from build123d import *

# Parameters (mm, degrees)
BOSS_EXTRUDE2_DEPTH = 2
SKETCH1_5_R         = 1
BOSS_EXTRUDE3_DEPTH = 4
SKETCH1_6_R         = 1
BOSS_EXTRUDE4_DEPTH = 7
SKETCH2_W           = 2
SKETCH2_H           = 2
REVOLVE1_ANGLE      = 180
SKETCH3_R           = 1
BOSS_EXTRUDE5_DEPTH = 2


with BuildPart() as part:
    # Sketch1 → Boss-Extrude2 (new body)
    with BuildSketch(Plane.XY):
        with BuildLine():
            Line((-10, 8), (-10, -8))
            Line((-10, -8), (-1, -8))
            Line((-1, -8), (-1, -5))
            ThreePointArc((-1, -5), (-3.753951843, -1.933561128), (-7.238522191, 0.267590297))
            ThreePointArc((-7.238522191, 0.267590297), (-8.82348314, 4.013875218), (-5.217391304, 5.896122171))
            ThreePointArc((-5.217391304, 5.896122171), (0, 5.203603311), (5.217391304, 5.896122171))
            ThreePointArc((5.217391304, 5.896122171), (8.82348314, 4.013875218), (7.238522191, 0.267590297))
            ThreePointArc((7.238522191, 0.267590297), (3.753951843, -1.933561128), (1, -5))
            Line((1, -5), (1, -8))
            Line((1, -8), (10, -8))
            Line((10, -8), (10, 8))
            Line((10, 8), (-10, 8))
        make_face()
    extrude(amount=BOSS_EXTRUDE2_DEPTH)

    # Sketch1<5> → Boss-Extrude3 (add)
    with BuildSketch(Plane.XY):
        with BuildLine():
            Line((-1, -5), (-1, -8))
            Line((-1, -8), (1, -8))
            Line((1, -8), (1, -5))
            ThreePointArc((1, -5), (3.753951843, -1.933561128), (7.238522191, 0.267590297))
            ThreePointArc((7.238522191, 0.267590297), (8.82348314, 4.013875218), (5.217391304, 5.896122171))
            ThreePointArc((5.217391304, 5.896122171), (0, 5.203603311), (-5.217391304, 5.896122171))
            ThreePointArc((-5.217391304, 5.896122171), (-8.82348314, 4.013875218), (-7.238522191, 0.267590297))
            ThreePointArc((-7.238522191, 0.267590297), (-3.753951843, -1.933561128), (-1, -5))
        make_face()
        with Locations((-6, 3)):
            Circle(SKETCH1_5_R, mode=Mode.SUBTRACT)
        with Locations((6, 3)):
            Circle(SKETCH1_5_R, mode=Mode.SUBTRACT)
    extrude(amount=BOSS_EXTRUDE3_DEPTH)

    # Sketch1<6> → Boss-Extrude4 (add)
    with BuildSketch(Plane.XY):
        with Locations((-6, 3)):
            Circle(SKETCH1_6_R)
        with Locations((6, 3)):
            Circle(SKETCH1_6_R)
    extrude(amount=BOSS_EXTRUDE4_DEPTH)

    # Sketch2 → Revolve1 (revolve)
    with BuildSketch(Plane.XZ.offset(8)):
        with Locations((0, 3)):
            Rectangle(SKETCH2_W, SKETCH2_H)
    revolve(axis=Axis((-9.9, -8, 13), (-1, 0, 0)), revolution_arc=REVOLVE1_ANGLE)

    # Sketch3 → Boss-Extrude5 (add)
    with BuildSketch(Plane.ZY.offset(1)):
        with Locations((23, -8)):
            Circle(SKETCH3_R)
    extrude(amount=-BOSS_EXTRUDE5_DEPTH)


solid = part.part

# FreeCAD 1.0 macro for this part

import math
import FreeCAD as App
import Part
import Sketcher

V = App.Vector
Q = App.Units.Quantity


def add_polygon(sketch, points):
    """Adds a closed chain of lines whose ends are joined by coincident constraints."""
    first, n = sketch.GeometryCount, len(points)
    for a, b in zip(points, points[1:] + points[:1]):
        sketch.addGeometry(Part.LineSegment(App.Vector(*a, 0), App.Vector(*b, 0)), False)
    for i in range(n):
        sketch.addConstraint(Sketcher.Constraint("Coincident", first + i, 2, first + (i + 1) % n, 1))

doc = App.newDocument("Part")
body = doc.addObject("PartDesign::Body", "Body")

sketch1 = doc.addObject("Sketcher::SketchObject", "Sketch")
body.addObject(sketch1)
sketch1.AttachmentSupport = (doc.XY_Plane, [""])
sketch1.MapMode = "FlatFace"
sketch1.addGeometry([
    Part.LineSegment(V(-10, 8, 0), V(-10, -8, 0)),
    Part.LineSegment(V(-10, -8, 0), V(-1, -8, 0)),
    Part.LineSegment(V(-1, -8, 0), V(-1, -5, 0)),
    Part.ArcOfCircle(Part.Circle(V(-13.4, -13.4, 0), V(0, 0, 1), 15), math.radians(34), math.radians(66)),
    Part.ArcOfCircle(Part.Circle(V(-6, 3, 0), V(0, 0, 1), 3), math.radians(75), math.radians(246)),
    Part.ArcOfCircle(Part.Circle(V(0, 25.2, 0), V(0, 0, 1), 20), math.radians(-105), math.radians(-75)),
    Part.ArcOfCircle(Part.Circle(V(6, 3, 0), V(0, 0, 1), 3), math.radians(-66), math.radians(105)),
    Part.ArcOfCircle(Part.Circle(V(13.4, -13.4, 0), V(0, 0, 1), 15), math.radians(114), math.radians(146)),
    Part.LineSegment(V(1, -5, 0), V(1, -8, 0)),
    Part.LineSegment(V(1, -8, 0), V(10, -8, 0)),
    Part.LineSegment(V(10, -8, 0), V(10, 8, 0)),
    Part.LineSegment(V(10, 8, 0), V(-10, 8, 0)),
], False)
sketch1.addConstraint([
    Sketcher.Constraint("Coincident", 0, 2, 1, 1),
    Sketcher.Constraint("Coincident", 1, 2, 2, 1),
    Sketcher.Constraint("Coincident", 2, 2, 3, 1),
    Sketcher.Constraint("Tangent", 3, 2, 4, 2),
    Sketcher.Constraint("Tangent", 4, 1, 5, 1),
    Sketcher.Constraint("Tangent", 5, 2, 6, 2),
    Sketcher.Constraint("Tangent", 6, 1, 7, 1),
    Sketcher.Constraint("Coincident", 7, 2, 8, 1),
    Sketcher.Constraint("Coincident", 8, 2, 9, 1),
    Sketcher.Constraint("Coincident", 9, 2, 10, 1),
    Sketcher.Constraint("Coincident", 10, 2, 11, 1),
    Sketcher.Constraint("Coincident", 11, 2, 0, 1),
    Sketcher.Constraint("Vertical", 0),
    Sketcher.Constraint("Horizontal", 1),
    Sketcher.Constraint("Vertical", 2),
    Sketcher.Constraint("Vertical", 8),
    Sketcher.Constraint("Horizontal", 9),
    Sketcher.Constraint("Vertical", 10),
    Sketcher.Constraint("Horizontal", 11),
    Sketcher.Constraint("Equal", 4, 6),
    Sketcher.Constraint("Equal", 3, 7),
    Sketcher.Constraint("Symmetric", 0, 2, 10, 2, -1, 1),
    Sketcher.Constraint("Symmetric", 4, 3, 6, 3, -2),
    Sketcher.Constraint("Symmetric", 2, 2, 7, 2, -2),
    Sketcher.Constraint("Horizontal", 1, 2, 8, 2),
    Sketcher.Constraint("Radius", 3, Q("15 mm")),
    Sketcher.Constraint("Radius", 4, Q("3 mm")),
    Sketcher.Constraint("Radius", 5, Q("20 mm")),
    Sketcher.Constraint("DistanceX", 1, 1, 1, 2, Q("9 mm")),
    Sketcher.Constraint("DistanceX", 11, 2, 11, 1, Q("20 mm")),
    Sketcher.Constraint("DistanceY", 0, 2, 0, 1, Q("16 mm")),
    Sketcher.Constraint("DistanceY", 2, 1, 2, 2, Q("3 mm")),
    Sketcher.Constraint("DistanceX", 4, 3, -1, 1, Q("6 mm")),
    Sketcher.Constraint("DistanceY", -1, 1, 4, 3, Q("3 mm")),
])
pad1 = doc.addObject("PartDesign::Pad", "Pad")
body.addObject(pad1)
pad1.Profile = sketch1
pad1.Length = 2

sketch2 = doc.addObject("Sketcher::SketchObject", "Sketch001")
body.addObject(sketch2)
sketch2.AttachmentSupport = (doc.XY_Plane, [""])
sketch2.MapMode = "FlatFace"
sketch2.addGeometry([
    Part.LineSegment(V(-1, -5, 0), V(-1, -8, 0)),
    Part.LineSegment(V(-1, -8, 0), V(1, -8, 0)),
    Part.LineSegment(V(1, -8, 0), V(1, -5, 0)),
    Part.ArcOfCircle(Part.Circle(V(13.4, -13.4, 0), V(0, 0, 1), 15), math.radians(114), math.radians(146)),
    Part.ArcOfCircle(Part.Circle(V(6, 3, 0), V(0, 0, 1), 3), math.radians(-66), math.radians(105)),
    Part.ArcOfCircle(Part.Circle(V(0, 25.2, 0), V(0, 0, 1), 20), math.radians(-105), math.radians(-75)),
    Part.ArcOfCircle(Part.Circle(V(-6, 3, 0), V(0, 0, 1), 3), math.radians(75), math.radians(246)),
    Part.ArcOfCircle(Part.Circle(V(-13.4, -13.4, 0), V(0, 0, 1), 15), math.radians(34), math.radians(66)),
    Part.Circle(V(-6, 3, 0), V(0, 0, 1), 1),
    Part.Circle(V(6, 3, 0), V(0, 0, 1), 1),
], False)
sketch2.addConstraint([
    Sketcher.Constraint("Coincident", 0, 2, 1, 1),
    Sketcher.Constraint("Coincident", 1, 2, 2, 1),
    Sketcher.Constraint("Coincident", 2, 2, 3, 2),
    Sketcher.Constraint("Tangent", 3, 1, 4, 1),
    Sketcher.Constraint("Tangent", 4, 2, 5, 2),
    Sketcher.Constraint("Tangent", 5, 1, 6, 1),
    Sketcher.Constraint("Tangent", 6, 2, 7, 2),
    Sketcher.Constraint("Coincident", 7, 1, 0, 1),
    Sketcher.Constraint("Vertical", 0),
    Sketcher.Constraint("Horizontal", 1),
    Sketcher.Constraint("Vertical", 2),
    Sketcher.Constraint("Coincident", 8, 3, 6, 3),
    Sketcher.Constraint("Coincident", 9, 3, 4, 3),
    Sketcher.Constraint("Equal", 4, 6),
    Sketcher.Constraint("Equal", 3, 7),
    Sketcher.Constraint("Equal", 8, 9),
    Sketcher.Constraint("Symmetric", 4, 3, 6, 3, -2),
    Sketcher.Constraint("Symmetric", 2, 2, 7, 1, -2),
    Sketcher.Constraint("Diameter", 8, Q("2 mm")),
    Sketcher.Constraint("Radius", 3, Q("15 mm")),
    Sketcher.Constraint("Radius", 4, Q("3 mm")),
    Sketcher.Constraint("Radius", 5, Q("20 mm")),
    Sketcher.Constraint("DistanceX", 1, 1, 1, 2, Q("2 mm")),
    Sketcher.Constraint("DistanceY", 0, 2, 0, 1, Q("3 mm")),
    Sketcher.Constraint("DistanceX", -1, 1, 4, 3, Q("6 mm")),
    Sketcher.Constraint("DistanceY", -1, 1, 4, 3, Q("3 mm")),
    Sketcher.Constraint("DistanceY", 0, 2, -1, 1, Q("8 mm")),
])
pad2 = doc.addObject("PartDesign::Pad", "Pad001")
body.addObject(pad2)
pad2.Profile = sketch2
pad2.Length = 4

sketch3 = doc.addObject("Sketcher::SketchObject", "Sketch002")
body.addObject(sketch3)
sketch3.AttachmentSupport = (doc.XY_Plane, [""])
sketch3.MapMode = "FlatFace"
sketch3.addGeometry([
    Part.Circle(V(-6, 3, 0), V(0, 0, 1), 1),
    Part.Circle(V(6, 3, 0), V(0, 0, 1), 1),
], False)
sketch3.addConstraint([
    Sketcher.Constraint("Equal", 0, 1),
    Sketcher.Constraint("Symmetric", 0, 3, 1, 3, -2),
    Sketcher.Constraint("Diameter", 0, Q("2 mm")),
    Sketcher.Constraint("DistanceX", 0, 3, -1, 1, Q("6 mm")),
    Sketcher.Constraint("DistanceY", -1, 1, 0, 3, Q("3 mm")),
])
pad3 = doc.addObject("PartDesign::Pad", "Pad002")
body.addObject(pad3)
pad3.Profile = sketch3
pad3.Length = 7

sketch4 = doc.addObject("Sketcher::SketchObject", "Sketch003")
body.addObject(sketch4)
sketch4.AttachmentSupport = (doc.XZ_Plane, [""])
sketch4.MapMode = "FlatFace"
sketch4.AttachmentOffset = App.Placement(V(0, 0, 8), App.Rotation())
add_polygon(sketch4, [(-1, 4), (-1, 2), (1, 2), (1, 4)])
sketch4.addGeometry(Part.LineSegment(V(1, 13, 0), V(-1, 13, 0)), True)
sketch4.addConstraint([
    Sketcher.Constraint("Vertical", 0),
    Sketcher.Constraint("Horizontal", 1),
    Sketcher.Constraint("Vertical", 2),
    Sketcher.Constraint("Horizontal", 3),
    Sketcher.Constraint("Horizontal", 4),
    Sketcher.Constraint("Vertical", 2, 2, 4, 1),
    Sketcher.Constraint("Vertical", 3, 2, 4, 2),
    Sketcher.Constraint("Equal", 4, 0),
    Sketcher.Constraint("DistanceX", 1, 1, 1, 2, Q("2 mm")),
    Sketcher.Constraint("DistanceX", 0, 2, -1, 1, Q("1 mm")),
    Sketcher.Constraint("DistanceY", -1, 1, 0, 2, Q("2 mm")),
    Sketcher.Constraint("DistanceY", -1, 1, 4, 1, Q("13 mm")),
])
revolution = doc.addObject("PartDesign::Revolution", "Revolution")
body.addObject(revolution)
revolution.Profile = sketch4
revolution.ReferenceAxis = (sketch4, ["Axis0"])
revolution.Angle = 180

sketch5 = doc.addObject("Sketcher::SketchObject", "Sketch004")
body.addObject(sketch5)
sketch5.AttachmentSupport = (doc.YZ_Plane, [""])
sketch5.MapMode = "FlatFace"
sketch5.AttachmentOffset = App.Placement(V(0, 0, -1), App.Rotation())
sketch5.addGeometry(Part.Circle(V(-8, 23, 0), V(0, 0, 1), 1), False)
sketch5.addConstraint([
    Sketcher.Constraint("Diameter", 0, Q("2 mm")),
    Sketcher.Constraint("DistanceX", 0, 3, -1, 1, Q("8 mm")),
    Sketcher.Constraint("DistanceY", -1, 1, 0, 3, Q("23 mm")),
])
pad4 = doc.addObject("PartDesign::Pad", "Pad003")
body.addObject(pad4)
pad4.Profile = sketch5
pad4.Length = 2

doc.recompute()
